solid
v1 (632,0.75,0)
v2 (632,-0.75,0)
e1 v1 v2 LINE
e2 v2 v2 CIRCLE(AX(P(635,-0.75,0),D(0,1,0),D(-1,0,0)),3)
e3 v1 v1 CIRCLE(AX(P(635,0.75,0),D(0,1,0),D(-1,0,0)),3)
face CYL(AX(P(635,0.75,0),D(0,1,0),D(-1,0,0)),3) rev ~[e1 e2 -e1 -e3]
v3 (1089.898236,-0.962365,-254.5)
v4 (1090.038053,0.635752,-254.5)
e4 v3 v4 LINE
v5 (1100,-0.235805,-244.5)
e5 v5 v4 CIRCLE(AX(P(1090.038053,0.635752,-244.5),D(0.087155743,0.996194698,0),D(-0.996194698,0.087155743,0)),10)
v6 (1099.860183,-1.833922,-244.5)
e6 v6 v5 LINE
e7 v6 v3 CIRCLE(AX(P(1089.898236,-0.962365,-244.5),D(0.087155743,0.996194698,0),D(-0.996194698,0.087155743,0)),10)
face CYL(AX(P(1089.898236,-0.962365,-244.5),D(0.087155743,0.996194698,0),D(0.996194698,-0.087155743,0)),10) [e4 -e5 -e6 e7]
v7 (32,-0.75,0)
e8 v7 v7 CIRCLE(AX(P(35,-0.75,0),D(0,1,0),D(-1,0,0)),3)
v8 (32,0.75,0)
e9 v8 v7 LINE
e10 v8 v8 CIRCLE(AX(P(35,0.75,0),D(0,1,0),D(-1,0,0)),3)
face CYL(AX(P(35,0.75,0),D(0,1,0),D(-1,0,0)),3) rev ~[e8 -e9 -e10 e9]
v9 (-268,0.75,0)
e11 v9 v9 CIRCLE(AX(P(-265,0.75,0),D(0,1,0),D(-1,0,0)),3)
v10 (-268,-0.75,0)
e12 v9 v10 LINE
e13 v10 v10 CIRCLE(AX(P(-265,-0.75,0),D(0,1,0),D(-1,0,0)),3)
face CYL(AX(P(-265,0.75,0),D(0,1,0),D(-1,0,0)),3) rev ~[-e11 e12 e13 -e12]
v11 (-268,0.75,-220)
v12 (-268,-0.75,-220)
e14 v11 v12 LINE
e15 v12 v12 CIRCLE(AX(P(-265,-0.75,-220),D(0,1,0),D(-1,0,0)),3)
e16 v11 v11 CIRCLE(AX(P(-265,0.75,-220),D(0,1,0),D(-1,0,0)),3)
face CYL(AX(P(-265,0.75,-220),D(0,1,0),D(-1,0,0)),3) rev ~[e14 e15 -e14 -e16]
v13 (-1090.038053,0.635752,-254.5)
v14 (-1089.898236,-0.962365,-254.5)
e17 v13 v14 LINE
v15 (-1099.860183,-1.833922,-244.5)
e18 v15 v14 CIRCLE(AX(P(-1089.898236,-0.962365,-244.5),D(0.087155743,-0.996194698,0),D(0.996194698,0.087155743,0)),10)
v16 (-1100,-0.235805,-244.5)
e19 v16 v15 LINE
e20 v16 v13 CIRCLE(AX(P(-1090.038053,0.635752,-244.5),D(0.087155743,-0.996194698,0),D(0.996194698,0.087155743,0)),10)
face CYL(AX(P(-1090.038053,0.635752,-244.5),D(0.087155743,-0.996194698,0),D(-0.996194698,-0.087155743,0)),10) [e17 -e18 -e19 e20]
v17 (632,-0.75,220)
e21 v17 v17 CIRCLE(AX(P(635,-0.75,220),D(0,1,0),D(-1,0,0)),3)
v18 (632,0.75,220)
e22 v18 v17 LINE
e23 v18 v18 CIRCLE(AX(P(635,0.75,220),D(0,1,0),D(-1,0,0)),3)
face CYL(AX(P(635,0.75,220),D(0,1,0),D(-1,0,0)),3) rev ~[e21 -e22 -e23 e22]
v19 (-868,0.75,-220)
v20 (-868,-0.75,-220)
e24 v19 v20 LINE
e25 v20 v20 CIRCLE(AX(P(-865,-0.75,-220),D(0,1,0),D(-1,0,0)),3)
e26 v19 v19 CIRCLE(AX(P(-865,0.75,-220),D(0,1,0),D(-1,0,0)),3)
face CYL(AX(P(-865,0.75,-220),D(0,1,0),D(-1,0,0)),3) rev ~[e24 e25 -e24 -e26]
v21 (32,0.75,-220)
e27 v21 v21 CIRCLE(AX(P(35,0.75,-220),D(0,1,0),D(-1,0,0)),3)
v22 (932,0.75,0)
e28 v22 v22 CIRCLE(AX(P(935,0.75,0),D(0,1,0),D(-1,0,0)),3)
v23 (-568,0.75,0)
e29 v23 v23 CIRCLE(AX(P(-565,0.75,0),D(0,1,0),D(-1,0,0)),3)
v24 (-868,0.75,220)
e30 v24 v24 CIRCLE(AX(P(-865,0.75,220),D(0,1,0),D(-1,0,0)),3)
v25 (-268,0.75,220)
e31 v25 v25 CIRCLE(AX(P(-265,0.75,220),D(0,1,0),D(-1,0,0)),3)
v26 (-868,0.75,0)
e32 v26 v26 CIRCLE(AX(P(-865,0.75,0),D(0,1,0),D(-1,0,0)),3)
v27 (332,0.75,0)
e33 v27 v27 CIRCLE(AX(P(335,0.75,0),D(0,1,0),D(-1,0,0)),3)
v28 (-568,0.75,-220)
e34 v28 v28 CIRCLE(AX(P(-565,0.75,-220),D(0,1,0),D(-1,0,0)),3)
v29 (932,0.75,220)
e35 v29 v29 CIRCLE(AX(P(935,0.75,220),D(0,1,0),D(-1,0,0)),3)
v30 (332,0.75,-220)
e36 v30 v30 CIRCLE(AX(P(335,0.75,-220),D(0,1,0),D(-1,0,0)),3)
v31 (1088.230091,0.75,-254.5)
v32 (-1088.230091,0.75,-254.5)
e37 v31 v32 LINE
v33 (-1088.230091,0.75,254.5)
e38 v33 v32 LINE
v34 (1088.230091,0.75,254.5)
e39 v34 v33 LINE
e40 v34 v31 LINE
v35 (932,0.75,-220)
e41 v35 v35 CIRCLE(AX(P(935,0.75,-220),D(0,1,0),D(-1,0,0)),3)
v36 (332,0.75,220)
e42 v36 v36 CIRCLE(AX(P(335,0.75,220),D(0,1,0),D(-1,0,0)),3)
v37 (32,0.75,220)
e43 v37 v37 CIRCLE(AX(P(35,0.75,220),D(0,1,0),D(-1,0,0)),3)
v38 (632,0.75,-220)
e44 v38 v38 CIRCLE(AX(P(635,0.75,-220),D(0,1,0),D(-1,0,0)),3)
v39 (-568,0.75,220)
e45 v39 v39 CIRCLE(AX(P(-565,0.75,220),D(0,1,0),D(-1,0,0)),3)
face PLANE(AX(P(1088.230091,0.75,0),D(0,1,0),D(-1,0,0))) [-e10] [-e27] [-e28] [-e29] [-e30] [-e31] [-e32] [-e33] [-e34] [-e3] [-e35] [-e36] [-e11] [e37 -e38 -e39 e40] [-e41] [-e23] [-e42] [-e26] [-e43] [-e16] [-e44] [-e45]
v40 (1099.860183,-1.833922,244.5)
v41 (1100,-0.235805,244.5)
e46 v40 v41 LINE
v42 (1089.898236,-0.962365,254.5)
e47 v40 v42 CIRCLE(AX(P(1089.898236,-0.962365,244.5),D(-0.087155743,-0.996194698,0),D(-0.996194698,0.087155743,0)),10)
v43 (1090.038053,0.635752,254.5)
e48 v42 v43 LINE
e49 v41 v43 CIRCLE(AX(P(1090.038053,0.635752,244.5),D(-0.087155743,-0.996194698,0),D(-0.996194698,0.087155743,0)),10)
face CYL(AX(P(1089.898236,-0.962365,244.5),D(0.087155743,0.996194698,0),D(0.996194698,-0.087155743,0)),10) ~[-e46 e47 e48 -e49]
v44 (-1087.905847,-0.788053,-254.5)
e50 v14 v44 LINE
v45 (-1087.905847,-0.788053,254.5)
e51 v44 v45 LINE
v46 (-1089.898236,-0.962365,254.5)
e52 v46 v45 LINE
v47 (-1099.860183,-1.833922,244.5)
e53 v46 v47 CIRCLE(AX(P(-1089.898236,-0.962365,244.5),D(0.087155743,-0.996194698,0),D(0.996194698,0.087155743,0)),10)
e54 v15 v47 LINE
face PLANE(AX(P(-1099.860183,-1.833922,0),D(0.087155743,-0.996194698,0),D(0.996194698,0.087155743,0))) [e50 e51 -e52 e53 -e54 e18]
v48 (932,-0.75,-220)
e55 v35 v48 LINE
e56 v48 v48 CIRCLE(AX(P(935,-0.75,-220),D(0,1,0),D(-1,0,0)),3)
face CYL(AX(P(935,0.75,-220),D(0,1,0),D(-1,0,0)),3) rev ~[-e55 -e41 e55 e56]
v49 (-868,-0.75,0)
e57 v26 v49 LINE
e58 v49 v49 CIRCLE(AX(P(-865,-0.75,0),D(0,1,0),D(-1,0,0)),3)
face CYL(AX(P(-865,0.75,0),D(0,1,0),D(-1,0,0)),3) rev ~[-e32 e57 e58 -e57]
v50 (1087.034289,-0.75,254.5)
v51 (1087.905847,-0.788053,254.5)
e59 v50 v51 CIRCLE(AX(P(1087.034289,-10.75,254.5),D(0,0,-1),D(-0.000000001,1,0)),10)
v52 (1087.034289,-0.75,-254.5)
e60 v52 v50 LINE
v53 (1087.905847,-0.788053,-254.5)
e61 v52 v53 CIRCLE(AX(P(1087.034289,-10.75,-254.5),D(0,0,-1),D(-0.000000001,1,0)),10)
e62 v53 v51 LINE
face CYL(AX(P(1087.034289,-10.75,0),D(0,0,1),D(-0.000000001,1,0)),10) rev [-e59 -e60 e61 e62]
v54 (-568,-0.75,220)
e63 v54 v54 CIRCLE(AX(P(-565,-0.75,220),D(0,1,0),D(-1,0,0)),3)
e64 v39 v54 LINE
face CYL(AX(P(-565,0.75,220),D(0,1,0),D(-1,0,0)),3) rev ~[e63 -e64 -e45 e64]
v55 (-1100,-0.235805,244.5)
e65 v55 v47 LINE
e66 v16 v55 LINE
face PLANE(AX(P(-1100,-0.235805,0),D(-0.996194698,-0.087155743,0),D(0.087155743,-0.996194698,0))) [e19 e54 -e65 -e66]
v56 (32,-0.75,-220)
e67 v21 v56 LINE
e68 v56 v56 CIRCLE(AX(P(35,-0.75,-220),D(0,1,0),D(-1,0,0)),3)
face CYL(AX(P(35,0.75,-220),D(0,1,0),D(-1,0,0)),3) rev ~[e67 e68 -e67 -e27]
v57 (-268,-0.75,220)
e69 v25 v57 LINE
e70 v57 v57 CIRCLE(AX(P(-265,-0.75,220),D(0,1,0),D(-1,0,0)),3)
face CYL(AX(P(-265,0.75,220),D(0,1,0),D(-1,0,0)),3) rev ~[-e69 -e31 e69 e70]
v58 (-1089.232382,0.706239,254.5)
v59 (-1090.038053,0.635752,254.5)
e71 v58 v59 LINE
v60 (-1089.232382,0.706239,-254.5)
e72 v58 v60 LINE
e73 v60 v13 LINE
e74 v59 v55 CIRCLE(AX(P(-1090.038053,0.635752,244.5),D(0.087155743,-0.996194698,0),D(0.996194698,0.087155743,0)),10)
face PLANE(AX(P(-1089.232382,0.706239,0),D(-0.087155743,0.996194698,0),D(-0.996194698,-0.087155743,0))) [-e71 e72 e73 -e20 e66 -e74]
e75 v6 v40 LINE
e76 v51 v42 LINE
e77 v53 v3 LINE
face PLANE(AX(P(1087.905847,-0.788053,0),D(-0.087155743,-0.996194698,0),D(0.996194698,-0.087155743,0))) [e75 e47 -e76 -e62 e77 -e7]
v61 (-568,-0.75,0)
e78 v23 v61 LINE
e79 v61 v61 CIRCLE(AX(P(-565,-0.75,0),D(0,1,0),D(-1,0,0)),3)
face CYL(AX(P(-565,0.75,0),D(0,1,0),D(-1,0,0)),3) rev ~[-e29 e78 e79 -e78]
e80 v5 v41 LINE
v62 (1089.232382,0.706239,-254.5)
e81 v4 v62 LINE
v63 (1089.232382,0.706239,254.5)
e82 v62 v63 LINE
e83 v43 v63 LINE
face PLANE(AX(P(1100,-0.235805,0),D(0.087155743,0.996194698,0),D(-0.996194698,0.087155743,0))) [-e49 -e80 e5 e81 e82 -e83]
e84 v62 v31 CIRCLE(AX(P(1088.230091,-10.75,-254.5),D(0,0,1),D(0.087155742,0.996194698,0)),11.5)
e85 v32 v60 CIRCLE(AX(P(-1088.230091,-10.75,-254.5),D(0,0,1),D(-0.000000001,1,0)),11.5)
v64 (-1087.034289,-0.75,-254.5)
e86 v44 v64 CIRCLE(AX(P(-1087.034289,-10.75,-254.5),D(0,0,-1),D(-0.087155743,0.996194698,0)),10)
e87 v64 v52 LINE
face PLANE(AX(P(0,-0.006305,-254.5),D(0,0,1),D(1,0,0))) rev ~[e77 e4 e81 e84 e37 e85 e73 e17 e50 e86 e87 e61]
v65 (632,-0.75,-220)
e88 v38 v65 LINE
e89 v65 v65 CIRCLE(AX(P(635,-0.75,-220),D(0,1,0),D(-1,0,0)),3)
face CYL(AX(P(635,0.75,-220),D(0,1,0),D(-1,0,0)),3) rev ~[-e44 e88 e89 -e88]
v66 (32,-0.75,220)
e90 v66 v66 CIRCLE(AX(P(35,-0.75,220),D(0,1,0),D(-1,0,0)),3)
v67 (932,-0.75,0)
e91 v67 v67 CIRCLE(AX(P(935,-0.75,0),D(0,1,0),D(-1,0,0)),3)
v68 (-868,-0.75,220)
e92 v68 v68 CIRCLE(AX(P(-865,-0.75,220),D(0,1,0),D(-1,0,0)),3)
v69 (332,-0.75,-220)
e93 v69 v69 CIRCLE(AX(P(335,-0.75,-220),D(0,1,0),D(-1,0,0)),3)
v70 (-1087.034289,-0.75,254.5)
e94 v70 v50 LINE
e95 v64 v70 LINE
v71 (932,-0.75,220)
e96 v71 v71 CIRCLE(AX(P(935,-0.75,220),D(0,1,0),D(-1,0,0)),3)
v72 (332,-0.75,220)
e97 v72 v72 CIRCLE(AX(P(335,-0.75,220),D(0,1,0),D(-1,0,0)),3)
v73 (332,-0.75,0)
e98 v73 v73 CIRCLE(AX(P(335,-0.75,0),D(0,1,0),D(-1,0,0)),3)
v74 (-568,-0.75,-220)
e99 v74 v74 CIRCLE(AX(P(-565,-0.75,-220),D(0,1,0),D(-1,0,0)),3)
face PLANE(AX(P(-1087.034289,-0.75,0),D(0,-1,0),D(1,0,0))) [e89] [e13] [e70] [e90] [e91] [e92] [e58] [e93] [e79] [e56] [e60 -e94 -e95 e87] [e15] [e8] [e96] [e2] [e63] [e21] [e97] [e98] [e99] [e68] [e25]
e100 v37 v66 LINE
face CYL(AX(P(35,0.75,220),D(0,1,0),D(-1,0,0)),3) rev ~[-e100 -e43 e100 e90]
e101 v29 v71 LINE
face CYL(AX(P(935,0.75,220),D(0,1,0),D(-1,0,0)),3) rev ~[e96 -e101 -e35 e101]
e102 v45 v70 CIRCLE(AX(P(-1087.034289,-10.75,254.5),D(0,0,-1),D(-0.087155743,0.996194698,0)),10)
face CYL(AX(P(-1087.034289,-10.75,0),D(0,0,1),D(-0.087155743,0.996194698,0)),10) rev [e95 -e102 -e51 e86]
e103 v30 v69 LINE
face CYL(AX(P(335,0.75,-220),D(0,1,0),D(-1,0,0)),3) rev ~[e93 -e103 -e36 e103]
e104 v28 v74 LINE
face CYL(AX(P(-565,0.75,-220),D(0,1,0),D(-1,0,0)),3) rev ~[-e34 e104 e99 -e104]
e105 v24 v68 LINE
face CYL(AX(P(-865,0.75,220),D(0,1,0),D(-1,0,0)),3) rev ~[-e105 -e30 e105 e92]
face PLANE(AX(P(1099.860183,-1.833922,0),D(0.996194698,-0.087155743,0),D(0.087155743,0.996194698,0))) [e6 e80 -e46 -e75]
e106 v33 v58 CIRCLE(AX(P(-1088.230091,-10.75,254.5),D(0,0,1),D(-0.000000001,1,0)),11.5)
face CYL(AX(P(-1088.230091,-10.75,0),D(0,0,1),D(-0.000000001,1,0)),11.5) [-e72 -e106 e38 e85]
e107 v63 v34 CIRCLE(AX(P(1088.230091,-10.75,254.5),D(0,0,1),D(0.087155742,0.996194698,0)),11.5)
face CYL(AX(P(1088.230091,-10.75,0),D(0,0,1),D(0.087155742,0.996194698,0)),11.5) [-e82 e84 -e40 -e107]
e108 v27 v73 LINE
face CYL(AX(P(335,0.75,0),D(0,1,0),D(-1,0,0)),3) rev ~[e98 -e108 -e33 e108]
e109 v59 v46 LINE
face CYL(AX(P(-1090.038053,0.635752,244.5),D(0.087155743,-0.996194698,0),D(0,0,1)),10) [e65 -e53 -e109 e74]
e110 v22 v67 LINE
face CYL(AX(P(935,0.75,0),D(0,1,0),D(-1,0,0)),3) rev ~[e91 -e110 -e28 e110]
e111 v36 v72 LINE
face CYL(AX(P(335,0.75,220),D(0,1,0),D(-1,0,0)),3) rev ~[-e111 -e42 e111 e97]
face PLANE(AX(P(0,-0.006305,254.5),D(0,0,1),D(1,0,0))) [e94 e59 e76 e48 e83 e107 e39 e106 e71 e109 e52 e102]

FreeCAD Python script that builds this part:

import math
import FreeCAD as App
import Part
import Sketcher

V = App.Vector
Q = App.Units.Quantity


def edges_at(feature, points):
    """Names of the edges that pass closest to the given points."""
    edges = feature.Shape.Edges
    near = lambda p: min(range(len(edges)), key=lambda i: edges[i].distToShape(Part.Vertex(*p))[0])
    return sorted({f"Edge{near(p) + 1}" for p in points})

doc = App.newDocument("Part")
params = doc.addObject("Spreadsheet::Sheet", "Params")
for row, (alias, value) in enumerate([
    ("sketch1_radius", "10 mm"),
    ("sketch1_radius2", "11.5 mm"),
    ("sketch1_length", "12 mm"),
    ("pad1_length", "509 mm"),
    ("fillet_radius", "10 mm"),
    ("sketch2_diameter", "6 mm"),
    ("pocket1_length", "2 mm"),
    ("linearpattern_pitch", "300 mm"),
    ("linearpattern2_pitch", "300 mm"),
], start=1):
    params.set(f"A{row}", alias)
    params.set(f"B{row}", "=" + value)
    params.setAlias(f"B{row}", alias)

body = doc.addObject("PartDesign::Body", "Body")

sketch1 = doc.addObject("Sketcher::SketchObject", "Sketch")
body.addObject(sketch1)
sketch1.AttachmentSupport = (doc.XY_Plane, [""])
sketch1.MapMode = "FlatFace"
sketch1.addGeometry([
    Part.LineSegment(V(-1089.2, 0.7, 0), V(-1100, -0.2, 0)),
    Part.LineSegment(V(-1100, -0.2, 0), V(-1099.9, -1.8, 0)),
    Part.LineSegment(V(-1099.9, -1.8, 0), V(-1087.9, -0.8, 0)),
    Part.ArcOfCircle(Part.Circle(V(-1087, -10.7, 0), V(0, 0, 1), 10), math.radians(90), math.radians(95)),
    Part.LineSegment(V(-1087, -0.8, 0), V(1087, -0.8, 0)),
    Part.ArcOfCircle(Part.Circle(V(1087, -10.7, 0), V(0, 0, 1), 10), math.radians(85), math.radians(90)),
    Part.LineSegment(V(1087.9, -0.8, 0), V(1099.9, -1.8, 0)),
    Part.LineSegment(V(1099.9, -1.8, 0), V(1100, -0.2, 0)),
    Part.LineSegment(V(1100, -0.2, 0), V(1089.2, 0.7, 0)),
    Part.ArcOfCircle(Part.Circle(V(1088.2, -10.8, 0), V(0, 0, 1), 11.5), math.radians(85), math.radians(90)),
    Part.LineSegment(V(1088.2, 0.8, 0), V(-1088.2, 0.8, 0)),
    Part.ArcOfCircle(Part.Circle(V(-1088.2, -10.8, 0), V(0, 0, 1), 11.5), math.radians(90), math.radians(95)),
], False)
sketch1.addConstraint([
    Sketcher.Constraint("Coincident", 0, 2, 1, 1),
    Sketcher.Constraint("Coincident", 1, 2, 2, 1),
    Sketcher.Constraint("Tangent", 2, 2, 3, 2),
    Sketcher.Constraint("Tangent", 3, 1, 4, 1),
    Sketcher.Constraint("Tangent", 4, 2, 5, 2),
    Sketcher.Constraint("Tangent", 5, 1, 6, 1),
    Sketcher.Constraint("Coincident", 6, 2, 7, 1),
    Sketcher.Constraint("Coincident", 7, 2, 8, 1),
    Sketcher.Constraint("Tangent", 8, 2, 9, 1),
    Sketcher.Constraint("Tangent", 9, 2, 10, 1),
    Sketcher.Constraint("Tangent", 10, 2, 11, 1),
    Sketcher.Constraint("Tangent", 11, 2, 0, 1),
    Sketcher.Constraint("Horizontal", 4),
    Sketcher.Constraint("Horizontal", 10),
    Sketcher.Constraint("Equal", 3, 5),
    Sketcher.Constraint("Equal", 9, 11),
    Sketcher.Constraint("Symmetric", 2, 2, 5, 1, -2),
    Sketcher.Constraint("Symmetric", 0, 2, 7, 2, -2),
    Sketcher.Constraint("Perpendicular", 0, 1),
    Sketcher.Constraint("Perpendicular", 1, 2),
    Sketcher.Constraint("Perpendicular", 6, 7),
    Sketcher.Constraint("Perpendicular", 7, 8),
    Sketcher.Constraint("Horizontal", 5, 3, 9, 3),
    Sketcher.Constraint("Radius", 3, 10.0),
    Sketcher.Constraint("Radius", 9, 11.5),
    Sketcher.Constraint("Angle", 0, Q("-175 deg")),
    Sketcher.Constraint("Distance", 2, 12.0),
    Sketcher.Constraint("DistanceX", 0, 2, -1, 1, 1100.0),
    Sketcher.Constraint("DistanceY", 3, 3, -1, 1, 10.75),
    Sketcher.Constraint("DistanceX", 4, 1, 4, 2, 2174.068578),
])
sketch1.setExpression("Constraints[23]", "Params.sketch1_radius")
sketch1.setExpression("Constraints[24]", "Params.sketch1_radius2")
sketch1.setExpression("Constraints[26]", "Params.sketch1_length")
pad1 = doc.addObject("PartDesign::Pad", "Pad")
body.addObject(pad1)
pad1.Profile = sketch1
pad1.setExpression("Length", "Params.pad1_length")
pad1.Midplane = True
doc.recompute()

fillet = doc.addObject("PartDesign::Fillet", "Fillet")
body.addObject(fillet)
fillet.Base = (pad1, edges_at(pad1, [
    (1099.93, -1.035, -254.5),
    (-1099.93, -1.035, -254.5),
    (1099.93, -1.035, 254.5),
    (-1099.93, -1.035, 254.5),
]))
fillet.setExpression("Radius", "Params.fillet_radius")

sketch2 = doc.addObject("Sketcher::SketchObject", "Sketch001")
body.addObject(sketch2)
sketch2.AttachmentSupport = (doc.XZ_Plane, [""])
sketch2.MapMode = "FlatFace"
sketch2.AttachmentOffset = App.Placement(V(0, 0, -0.75), App.Rotation())
sketch2.addGeometry([
    Part.Circle(V(35, 220, 0), V(0, 0, 1), 3),
    Part.Circle(V(35, -220, 0), V(0, 0, 1), 3),
    Part.Circle(V(35, 0, 0), V(0, 0, 1), 3),
], False)
sketch2.addConstraint([
    Sketcher.Constraint("Equal", 0, 1),
    Sketcher.Constraint("Equal", 1, 2),
    Sketcher.Constraint("Symmetric", 0, 3, 1, 3, -1),
    Sketcher.Constraint("PointOnObject", 2, 3, -1),
    Sketcher.Constraint("Vertical", 1, 3, 2, 3),
    Sketcher.Constraint("Diameter", 0, 6.0),
    Sketcher.Constraint("DistanceX", -1, 1, 0, 3, 35.0),
    Sketcher.Constraint("DistanceY", -1, 1, 0, 3, 220.0),
])
sketch2.setExpression("Constraints[5]", "Params.sketch2_diameter")
pocket1 = doc.addObject("PartDesign::Pocket", "Pocket")
body.addObject(pocket1)
pocket1.Profile = sketch2
pocket1.setExpression("Length", "Params.pocket1_length")
pocket1.Reversed = True
doc.recompute()

linearpattern = doc.addObject("PartDesign::LinearPattern", "LinearPattern")
body.addObject(linearpattern)
linearpattern.Originals = [pocket1]
linearpattern.Direction = (doc.X_Axis, [""])
linearpattern.Mode = "offset"
linearpattern.setExpression("Offset", "Params.linearpattern_pitch")
linearpattern.Occurrences = 4
body.Tip = linearpattern
doc.recompute()

linearpattern2 = doc.addObject("PartDesign::LinearPattern", "LinearPattern001")
body.addObject(linearpattern2)
linearpattern2.Originals = [pocket1]
linearpattern2.Direction = (doc.X_Axis, [""])
linearpattern2.Mode = "offset"
linearpattern2.setExpression("Offset", "Params.linearpattern2_pitch")
linearpattern2.Occurrences = 4
linearpattern2.Reversed = True
body.Tip = linearpattern2

doc.recompute()
